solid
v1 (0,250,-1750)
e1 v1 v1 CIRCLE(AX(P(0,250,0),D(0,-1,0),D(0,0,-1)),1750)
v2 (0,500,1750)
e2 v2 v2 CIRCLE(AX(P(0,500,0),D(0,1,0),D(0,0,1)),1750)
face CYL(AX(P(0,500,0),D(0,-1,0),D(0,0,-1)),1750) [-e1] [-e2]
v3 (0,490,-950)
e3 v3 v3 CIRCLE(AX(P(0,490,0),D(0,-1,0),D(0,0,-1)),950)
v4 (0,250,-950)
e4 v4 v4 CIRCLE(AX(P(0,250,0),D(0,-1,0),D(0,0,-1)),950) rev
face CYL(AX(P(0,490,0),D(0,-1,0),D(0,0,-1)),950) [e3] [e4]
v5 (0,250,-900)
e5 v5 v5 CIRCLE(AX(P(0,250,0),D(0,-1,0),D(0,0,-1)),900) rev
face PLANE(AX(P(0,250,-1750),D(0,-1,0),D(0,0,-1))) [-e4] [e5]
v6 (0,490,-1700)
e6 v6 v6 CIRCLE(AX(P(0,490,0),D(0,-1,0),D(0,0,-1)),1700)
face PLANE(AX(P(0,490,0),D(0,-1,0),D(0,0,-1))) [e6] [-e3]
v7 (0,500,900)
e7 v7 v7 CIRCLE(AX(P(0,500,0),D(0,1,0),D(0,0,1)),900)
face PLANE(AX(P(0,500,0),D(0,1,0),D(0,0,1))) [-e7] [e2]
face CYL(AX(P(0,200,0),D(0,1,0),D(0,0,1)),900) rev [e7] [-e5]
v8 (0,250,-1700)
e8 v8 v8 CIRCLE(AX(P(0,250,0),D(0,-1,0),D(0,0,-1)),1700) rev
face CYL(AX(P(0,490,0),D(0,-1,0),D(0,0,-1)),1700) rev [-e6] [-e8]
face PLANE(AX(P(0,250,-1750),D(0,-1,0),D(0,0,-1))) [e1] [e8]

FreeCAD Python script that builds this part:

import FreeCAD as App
import Part
import Sketcher
from FreeCAD import Vector


def add_polygon(sketch, points):
    """Adds a closed chain of lines whose ends are joined by coincident constraints."""
    first, n = sketch.GeometryCount, len(points)
    for a, b in zip(points, points[1:] + points[:1]):
        sketch.addGeometry(Part.LineSegment(App.Vector(*a, 0), App.Vector(*b, 0)), False)
    for i in range(n):
        sketch.addConstraint(Sketcher.Constraint("Coincident", first + i, 2, first + (i + 1) % n, 1))

doc = App.newDocument("Part")
body = doc.addObject("PartDesign::Body", "Body")

sketch1 = doc.addObject("Sketcher::SketchObject", "Sketch")
body.addObject(sketch1)
sketch1.AttachmentSupport = (doc.XZ_Plane, [""])
sketch1.MapMode = "FlatFace"
sketch1.addGeometry(Part.Circle(Vector(0, 0, 0), Vector(0, 0, 1), 1750), False)
sketch1.addConstraint([
    Sketcher.Constraint("Coincident", 0, 3, -1, 1),
    Sketcher.Constraint("Diameter", 0, 3500.0),
])
pad1 = doc.addObject("PartDesign::Pad", "Pad")
body.addObject(pad1)
pad1.Profile = sketch1
pad1.Length = 500
pad1.Reversed = True

sketch2 = doc.addObject("Sketcher::SketchObject", "Sketch001")
body.addObject(sketch2)
sketch2.AttachmentSupport = (doc.XZ_Plane, [""])
sketch2.MapMode = "FlatFace"
sketch2.AttachmentOffset = App.Placement(Vector(0, 0, -500), App.Rotation())
sketch2.addGeometry(Part.Circle(Vector(0, 0, 0), Vector(0, 0, 1), 900), False)
sketch2.addConstraint([
    Sketcher.Constraint("Coincident", 0, 3, -1, 1),
    Sketcher.Constraint("Diameter", 0, 1800.0),
])
pocket1 = doc.addObject("PartDesign::Pocket", "Pocket")
body.addObject(pocket1)
pocket1.Profile = sketch2
pocket1.Length = 300
pocket1.Reversed = True

sketch3 = doc.addObject("Sketcher::SketchObject", "Sketch002")
body.addObject(sketch3)
sketch3.AttachmentSupport = (doc.XZ_Plane, [""])
sketch3.MapMode = "FlatFace"
sketch3.addGeometry(Part.Circle(Vector(0, 0, 0), Vector(0, 0, 1), 600), False)
sketch3.addConstraint([
    Sketcher.Constraint("Coincident", 0, 3, -1, 1),
    Sketcher.Constraint("Diameter", 0, 1200.0),
])
pocket2 = doc.addObject("PartDesign::Pocket", "Pocket001")
body.addObject(pocket2)
pocket2.Profile = sketch3
pocket2.Length = 300

sketch4 = doc.addObject("Sketcher::SketchObject", "Sketch003")
body.addObject(sketch4)
sketch4.AttachmentSupport = (doc.XZ_Plane, [""])
sketch4.MapMode = "FlatFace"
sketch4.addGeometry([
    Part.Circle(Vector(0, 0, 0), Vector(0, 0, 1), 1700),
    Part.Circle(Vector(0, 0, 0), Vector(0, 0, 1), 950),
], False)
sketch4.addConstraint([
    Sketcher.Constraint("Coincident", 0, 3, -1, 1),
    Sketcher.Constraint("Coincident", 1, 3, -1, 1),
    Sketcher.Constraint("Diameter", 0, 3400.0),
    Sketcher.Constraint("Diameter", 1, 1900.0),
])
pocket3 = doc.addObject("PartDesign::Pocket", "Pocket002")
body.addObject(pocket3)
pocket3.Profile = sketch4
pocket3.Length = 490

sketch5 = doc.addObject("Sketcher::SketchObject", "Sketch004")
body.addObject(sketch5)
sketch5.AttachmentSupport = (doc.XY_Plane, [""])
sketch5.MapMode = "FlatFace"
add_polygon(sketch5, [(-1750, 250), (-1750, 0), (1750, 0), (1750, 250)])
sketch5.addConstraint([
    Sketcher.Constraint("Vertical", 0),
    Sketcher.Constraint("Horizontal", 1),
    Sketcher.Constraint("Vertical", 2),
    Sketcher.Constraint("Horizontal", 3),
    Sketcher.Constraint("Symmetric", 0, 2, 1, 2, -1, 1),
    Sketcher.Constraint("DistanceX", 1, 1, 1, 2, 3500.0),
    Sketcher.Constraint("DistanceY", 0, 2, 0, 1, 250.0),
])
pocket4 = doc.addObject("PartDesign::Pocket", "Pocket003")
body.addObject(pocket4)
pocket4.Profile = sketch5
pocket4.Type = "ThroughAll"
pocket4.Midplane = True

doc.recompute()
